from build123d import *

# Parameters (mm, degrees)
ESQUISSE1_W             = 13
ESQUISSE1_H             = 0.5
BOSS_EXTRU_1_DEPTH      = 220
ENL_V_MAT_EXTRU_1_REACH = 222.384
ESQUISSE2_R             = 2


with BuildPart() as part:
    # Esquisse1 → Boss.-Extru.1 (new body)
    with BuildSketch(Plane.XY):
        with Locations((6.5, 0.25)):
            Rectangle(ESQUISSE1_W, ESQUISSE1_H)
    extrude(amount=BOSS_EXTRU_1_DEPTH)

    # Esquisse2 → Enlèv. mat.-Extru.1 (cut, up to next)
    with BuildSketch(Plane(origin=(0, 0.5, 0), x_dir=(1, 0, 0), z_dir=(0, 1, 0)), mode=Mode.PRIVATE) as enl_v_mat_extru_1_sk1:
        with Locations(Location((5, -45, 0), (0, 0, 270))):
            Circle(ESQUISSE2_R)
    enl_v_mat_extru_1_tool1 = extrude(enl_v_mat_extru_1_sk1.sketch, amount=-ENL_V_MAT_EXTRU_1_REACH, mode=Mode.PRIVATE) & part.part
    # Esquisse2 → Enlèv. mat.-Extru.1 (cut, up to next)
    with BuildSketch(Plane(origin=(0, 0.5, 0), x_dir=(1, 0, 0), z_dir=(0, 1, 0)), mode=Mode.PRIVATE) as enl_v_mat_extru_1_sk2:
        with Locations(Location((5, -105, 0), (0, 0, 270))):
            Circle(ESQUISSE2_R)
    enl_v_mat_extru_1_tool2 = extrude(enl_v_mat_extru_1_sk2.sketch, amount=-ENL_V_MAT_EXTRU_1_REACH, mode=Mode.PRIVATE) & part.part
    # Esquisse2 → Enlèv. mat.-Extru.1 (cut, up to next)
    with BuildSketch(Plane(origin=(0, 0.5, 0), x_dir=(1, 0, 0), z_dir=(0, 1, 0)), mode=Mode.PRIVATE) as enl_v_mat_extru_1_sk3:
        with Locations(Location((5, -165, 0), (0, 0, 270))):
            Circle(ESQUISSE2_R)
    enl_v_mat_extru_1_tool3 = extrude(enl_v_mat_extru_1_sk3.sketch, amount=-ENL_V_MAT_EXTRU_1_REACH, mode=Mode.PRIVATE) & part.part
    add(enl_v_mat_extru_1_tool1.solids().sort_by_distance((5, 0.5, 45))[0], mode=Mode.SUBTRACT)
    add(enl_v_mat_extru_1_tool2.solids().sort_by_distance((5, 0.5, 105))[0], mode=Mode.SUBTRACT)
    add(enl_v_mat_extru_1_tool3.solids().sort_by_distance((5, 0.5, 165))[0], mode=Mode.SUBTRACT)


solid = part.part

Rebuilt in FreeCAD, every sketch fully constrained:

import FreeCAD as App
import Part
import Sketcher
Q = App.Units.Quantity


def add_polygon(sketch, points):
    """Adds a closed chain of lines whose ends are joined by coincident constraints."""
    first, n = sketch.GeometryCount, len(points)
    for a, b in zip(points, points[1:] + points[:1]):
        sketch.addGeometry(Part.LineSegment(App.Vector(*a, 0), App.Vector(*b, 0)), False)
    for i in range(n):
        sketch.addConstraint(Sketcher.Constraint("Coincident", first + i, 2, first + (i + 1) % n, 1))

doc = App.newDocument("Part")
body = doc.addObject("PartDesign::Body", "Body")

# Sketch on XY plane
sketch1 = body.newObject("Sketcher::SketchObject", "Sketch")
sketch1.AttachmentSupport = (doc.getObject("XY_Plane"), [""])
sketch1.MapMode = "FlatFace"
add_polygon(sketch1, [(0, 0.5), (0, 0), (13, 0), (13, 0.5)])  # lines 0-3
sketch1.addConstraint(Sketcher.Constraint("Vertical", 0))
sketch1.addConstraint(Sketcher.Constraint("Horizontal", 1))
sketch1.addConstraint(Sketcher.Constraint("Vertical", 2))
sketch1.addConstraint(Sketcher.Constraint("Horizontal", 3))
sketch1.addConstraint(Sketcher.Constraint("Coincident", 0, 2, -1, 1))
sketch1.addConstraint(Sketcher.Constraint("DistanceX", 1, 1, 1, 2, Q("13 mm")))
sketch1.addConstraint(Sketcher.Constraint("DistanceY", 0, 2, 0, 1, Q("0.5 mm")))
pad1 = body.newObject("PartDesign::Pad", "Pad")
pad1.Profile = sketch1
pad1.Length = 220

# Sketch on XZ plane
sketch2 = body.newObject("Sketcher::SketchObject", "Sketch001")
sketch2.AttachmentSupport = (doc.getObject("XZ_Plane"), [""])
sketch2.MapMode = "FlatFace"
sketch2.AttachmentOffset = App.Placement(App.Vector(0, 0, -0.5), App.Rotation())
sketch2.addGeometry(Part.Circle(App.Vector(5, 45, 0), App.Vector(0, 0, 1), 2), False)
sketch2.addConstraint(Sketcher.Constraint("Diameter", 0, Q("4 mm")))
sketch2.addConstraint(Sketcher.Constraint("DistanceX", -1, 1, 0, 3, Q("5 mm")))
sketch2.addConstraint(Sketcher.Constraint("DistanceY", -1, 1, 0, 3, Q("45 mm")))
pocket1 = body.newObject("PartDesign::Pocket", "Pocket")
pocket1.Profile = sketch2
pocket1.Type = "UpToFirst"
pocket1.Reversed = True

# Sketch on XZ plane
sketch3 = body.newObject("Sketcher::SketchObject", "Sketch002")
sketch3.AttachmentSupport = (doc.getObject("XZ_Plane"), [""])
sketch3.MapMode = "FlatFace"
sketch3.AttachmentOffset = App.Placement(App.Vector(0, 0, -0.5), App.Rotation())
sketch3.addGeometry(Part.Circle(App.Vector(5, 105, 0), App.Vector(0, 0, 1), 2), False)
sketch3.addConstraint(Sketcher.Constraint("Diameter", 0, Q("4 mm")))
sketch3.addConstraint(Sketcher.Constraint("DistanceX", -1, 1, 0, 3, Q("5 mm")))
sketch3.addConstraint(Sketcher.Constraint("DistanceY", -1, 1, 0, 3, Q("105 mm")))
pocket2 = body.newObject("PartDesign::Pocket", "Pocket001")
pocket2.Profile = sketch3
pocket2.Type = "UpToFirst"
pocket2.Reversed = True

# Sketch on XZ plane
sketch4 = body.newObject("Sketcher::SketchObject", "Sketch003")
sketch4.AttachmentSupport = (doc.getObject("XZ_Plane"), [""])
sketch4.MapMode = "FlatFace"
sketch4.AttachmentOffset = App.Placement(App.Vector(0, 0, -0.5), App.Rotation())
sketch4.addGeometry(Part.Circle(App.Vector(5, 165, 0), App.Vector(0, 0, 1), 2), False)
sketch4.addConstraint(Sketcher.Constraint("Diameter", 0, Q("4 mm")))
sketch4.addConstraint(Sketcher.Constraint("DistanceX", -1, 1, 0, 3, Q("5 mm")))
sketch4.addConstraint(Sketcher.Constraint("DistanceY", -1, 1, 0, 3, Q("165 mm")))
pocket3 = body.newObject("PartDesign::Pocket", "Pocket002")
pocket3.Profile = sketch4
pocket3.Type = "UpToFirst"
pocket3.Reversed = True

doc.recompute()
